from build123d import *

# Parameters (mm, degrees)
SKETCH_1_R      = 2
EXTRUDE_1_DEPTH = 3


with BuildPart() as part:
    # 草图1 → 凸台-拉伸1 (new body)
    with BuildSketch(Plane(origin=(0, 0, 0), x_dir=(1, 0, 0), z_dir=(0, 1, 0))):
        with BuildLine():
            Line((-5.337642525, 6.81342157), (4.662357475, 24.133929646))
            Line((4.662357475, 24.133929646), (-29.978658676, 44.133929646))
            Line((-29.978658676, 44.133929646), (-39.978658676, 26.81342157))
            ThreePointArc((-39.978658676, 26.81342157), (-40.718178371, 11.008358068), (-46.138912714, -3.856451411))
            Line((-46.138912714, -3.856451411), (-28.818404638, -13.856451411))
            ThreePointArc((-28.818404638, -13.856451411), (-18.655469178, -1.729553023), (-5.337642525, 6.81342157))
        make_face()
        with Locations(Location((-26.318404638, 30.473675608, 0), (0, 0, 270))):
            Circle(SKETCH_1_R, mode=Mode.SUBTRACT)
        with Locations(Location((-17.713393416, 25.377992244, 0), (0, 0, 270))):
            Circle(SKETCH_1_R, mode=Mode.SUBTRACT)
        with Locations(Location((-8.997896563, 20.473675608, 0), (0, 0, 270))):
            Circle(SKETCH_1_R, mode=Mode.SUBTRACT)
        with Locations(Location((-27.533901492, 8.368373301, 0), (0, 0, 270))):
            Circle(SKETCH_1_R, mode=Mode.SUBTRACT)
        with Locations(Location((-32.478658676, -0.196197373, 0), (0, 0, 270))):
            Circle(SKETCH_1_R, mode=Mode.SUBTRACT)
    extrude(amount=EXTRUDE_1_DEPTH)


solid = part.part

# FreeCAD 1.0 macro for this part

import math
import FreeCAD as App
import Part
import Sketcher

V = App.Vector
Q = App.Units.Quantity

doc = App.newDocument("Part")
body = doc.addObject("PartDesign::Body", "Body")

sketch1 = body.newObject("Sketcher::SketchObject", "Sketch")
sketch1.AttachmentSupport = (doc.getObject("XZ_Plane"), [""])
sketch1.MapMode = "FlatFace"
sketch1.addGeometry(Part.LineSegment(V(-5.337643, -6.813422, 0), V(4.662357, -24.13393, 0)), False)
sketch1.addGeometry(Part.LineSegment(V(4.662357, -24.13393, 0), V(-29.978659, -44.13393, 0)), False)
sketch1.addGeometry(Part.LineSegment(V(-29.978659, -44.13393, 0), V(-39.978659, -26.813422, 0)), False)
sketch1.addGeometry(Part.ArcOfCircle(Part.Circle(V(-92.123367, -21.333442, 0), V(0, 0, 1), 52.431868), math.radians(-5.999293), math.radians(28.713554)), False)
sketch1.addGeometry(Part.LineSegment(V(-46.138913, 3.856451, 0), V(-28.818405, 13.856451, 0)), False)
sketch1.addGeometry(Part.ArcOfCircle(Part.Circle(V(15.98891, 41.08521, 0), V(0, 0, 1), 52.431868), math.radians(-148.713554), math.radians(-114.000707)), False)
sketch1.addGeometry(Part.Circle(V(-32.478659, 0.196197, 0), V(0, 0, 1), 2), False)
sketch1.addGeometry(Part.Circle(V(-27.533901, -8.368373, 0), V(0, 0, 1), 2), False)
sketch1.addGeometry(Part.Circle(V(-26.318405, -30.473676, 0), V(0, 0, 1), 2), False)
sketch1.addGeometry(Part.Circle(V(-8.997897, -20.473676, 0), V(0, 0, 1), 2), False)
sketch1.addGeometry(Part.Circle(V(-17.713393, -25.377992, 0), V(0, 0, 1), 2), False)
sketch1.addConstraint(Sketcher.Constraint("Coincident", 0, 2, 1, 1))
sketch1.addConstraint(Sketcher.Constraint("Coincident", 1, 2, 2, 1))
sketch1.addConstraint(Sketcher.Constraint("Coincident", 2, 2, 3, 1))
sketch1.addConstraint(Sketcher.Constraint("Coincident", 3, 2, 4, 1))
sketch1.addConstraint(Sketcher.Constraint("Coincident", 4, 2, 5, 1))
sketch1.addConstraint(Sketcher.Constraint("Coincident", 5, 2, 0, 1))
sketch1.addConstraint(Sketcher.Constraint("Equal", 3, 5))
sketch1.addConstraint(Sketcher.Constraint("Equal", 6, 7))
sketch1.addConstraint(Sketcher.Constraint("Equal", 7, 8))
sketch1.addConstraint(Sketcher.Constraint("Equal", 8, 9))
sketch1.addConstraint(Sketcher.Constraint("Equal", 9, 10))
sketch1.addConstraint(Sketcher.Constraint("Perpendicular", 0, 1))
sketch1.addConstraint(Sketcher.Constraint("Perpendicular", 1, 2))
sketch1.addConstraint(Sketcher.Constraint("Perpendicular", 2, 4))
sketch1.addConstraint(Sketcher.Constraint("Equal", 0, 2))
sketch1.addConstraint(Sketcher.Constraint("Equal", 2, 4))
sketch1.addConstraint(Sketcher.Constraint("Diameter", 6, Q("4 mm")))
sketch1.addConstraint(Sketcher.Constraint("Angle", 0, Q("-60 deg")))
sketch1.addConstraint(Sketcher.Constraint("Distance", 0, Q("20 mm")))
sketch1.addConstraint(Sketcher.Constraint("Distance", 1, Q("40 mm")))
sketch1.addConstraint(Sketcher.Constraint("DistanceY", 8, 3, 9, 3, Q("10 mm")))
sketch1.addConstraint(Sketcher.Constraint("DistanceX", 2, 2, 6, 3, Q("7.5 mm")))
sketch1.addConstraint(Sketcher.Constraint("Radius", 3, Q("52.431868 mm")))
sketch1.addConstraint(Sketcher.Constraint("DistanceX", 7, 3, -1, 1, Q("27.533901 mm")))
sketch1.addConstraint(Sketcher.Constraint("DistanceX", -1, 1, 5, 3, Q("15.98891 mm")))
sketch1.addConstraint(Sketcher.Constraint("DistanceY", -1, 1, 5, 3, Q("41.08521 mm")))
sketch1.addConstraint(Sketcher.Constraint("DistanceX", 6, 3, -1, 1, Q("32.478659 mm")))
sketch1.addConstraint(Sketcher.Constraint("DistanceY", -1, 1, 3, 2, Q("3.856451 mm")))
sketch1.addConstraint(Sketcher.Constraint("DistanceY", 3, 3, 6, 3, Q("21.52964 mm")))
sketch1.addConstraint(Sketcher.Constraint("DistanceY", 7, 3, 6, 3, Q("8.564571 mm")))
sketch1.addConstraint(Sketcher.Constraint("DistanceX", 3, 3, 8, 3, Q("65.804962 mm")))
sketch1.addConstraint(Sketcher.Constraint("DistanceX", 8, 3, 9, 3, Q("17.320508 mm")))
sketch1.addConstraint(Sketcher.Constraint("DistanceX", 8, 3, 10, 3, Q("8.605011 mm")))
sketch1.addConstraint(Sketcher.Constraint("DistanceY", 10, 3, 7, 3, Q("17.009619 mm")))
sketch1.addConstraint(Sketcher.Constraint("DistanceY", 8, 3, -1, 1, Q("30.473676 mm")))
pad1 = body.newObject("PartDesign::Pad", "Pad")
pad1.Profile = sketch1
pad1.Length = 3
pad1.Reversed = True

doc.recompute()
